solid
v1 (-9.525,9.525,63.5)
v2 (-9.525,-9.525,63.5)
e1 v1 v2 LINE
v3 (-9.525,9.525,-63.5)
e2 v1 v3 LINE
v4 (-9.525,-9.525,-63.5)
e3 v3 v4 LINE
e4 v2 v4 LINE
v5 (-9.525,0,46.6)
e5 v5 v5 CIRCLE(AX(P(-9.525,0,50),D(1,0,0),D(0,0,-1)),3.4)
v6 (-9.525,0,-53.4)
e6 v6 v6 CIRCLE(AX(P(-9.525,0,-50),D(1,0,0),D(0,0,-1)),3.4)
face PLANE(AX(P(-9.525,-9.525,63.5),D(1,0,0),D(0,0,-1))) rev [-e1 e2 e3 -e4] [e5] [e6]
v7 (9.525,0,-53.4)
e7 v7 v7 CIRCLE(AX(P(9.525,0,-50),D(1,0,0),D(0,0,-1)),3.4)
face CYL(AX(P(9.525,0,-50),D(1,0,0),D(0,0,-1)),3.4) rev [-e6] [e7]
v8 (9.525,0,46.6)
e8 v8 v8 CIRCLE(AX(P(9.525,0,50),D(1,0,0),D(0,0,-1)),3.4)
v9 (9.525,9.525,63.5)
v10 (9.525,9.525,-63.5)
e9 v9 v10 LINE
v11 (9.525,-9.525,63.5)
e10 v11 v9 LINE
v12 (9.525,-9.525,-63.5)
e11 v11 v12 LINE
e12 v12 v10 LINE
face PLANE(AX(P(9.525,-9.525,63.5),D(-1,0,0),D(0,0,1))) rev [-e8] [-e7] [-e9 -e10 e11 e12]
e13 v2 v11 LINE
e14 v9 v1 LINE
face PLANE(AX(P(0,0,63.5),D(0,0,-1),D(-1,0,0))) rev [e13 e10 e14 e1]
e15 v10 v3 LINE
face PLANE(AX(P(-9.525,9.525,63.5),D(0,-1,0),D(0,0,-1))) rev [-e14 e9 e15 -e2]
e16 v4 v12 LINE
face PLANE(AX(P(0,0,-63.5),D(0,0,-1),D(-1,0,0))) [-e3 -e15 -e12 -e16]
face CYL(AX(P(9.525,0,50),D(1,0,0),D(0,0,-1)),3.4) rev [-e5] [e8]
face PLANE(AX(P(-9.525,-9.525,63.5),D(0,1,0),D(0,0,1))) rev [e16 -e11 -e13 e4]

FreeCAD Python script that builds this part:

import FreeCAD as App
import Part
import Sketcher
from FreeCAD import Vector
Q = App.Units.Quantity

doc = App.newDocument("Part")
body = doc.addObject("PartDesign::Body", "Body")

# Sketch on XY plane
sketch1 = body.newObject("Sketcher::SketchObject", "Sketch")
sketch1.AttachmentSupport = (doc.getObject("XY_Plane"), [""])
sketch1.MapMode = "FlatFace"
sketch1.addGeometry([
    Part.LineSegment(Vector(-10, 10, 0), Vector(-10, -10, 0)),
    Part.LineSegment(Vector(-10, -10, 0), Vector(10, -10, 0)),
    Part.LineSegment(Vector(10, -10, 0), Vector(10, 10, 0)),
    Part.LineSegment(Vector(10, 10, 0), Vector(-10, 10, 0)),
], False)
sketch1.addConstraint([
    Sketcher.Constraint("Coincident", 0, 2, 1, 1),
    Sketcher.Constraint("Coincident", 1, 2, 2, 1),
    Sketcher.Constraint("Coincident", 2, 2, 3, 1),
    Sketcher.Constraint("Coincident", 3, 2, 0, 1),
    Sketcher.Constraint("Vertical", 0),
    Sketcher.Constraint("Horizontal", 1),
    Sketcher.Constraint("Vertical", 2),
    Sketcher.Constraint("Horizontal", 3),
    Sketcher.Constraint("Symmetric", 0, 2, 2, 2, -1, 1),
    Sketcher.Constraint("Equal", 3, 0),
    Sketcher.Constraint("DistanceX", 1, 1, 1, 2, Q("0.75 in")),
])
pad1 = body.newObject("PartDesign::Pad", "Pad")
pad1.Profile = sketch1
pad1.Length = Q("5 in")
pad1.Midplane = True

# Sketch on YZ plane
sketch2 = body.newObject("Sketcher::SketchObject", "Sketch001")
sketch2.AttachmentSupport = (doc.getObject("YZ_Plane"), [""])
sketch2.MapMode = "FlatFace"
sketch2.AttachmentOffset = App.Placement(Vector(0, 0, 0.375 * 25.4), App.Rotation())
sketch2.addGeometry([
    Part.Circle(Vector(0, 50, 0), Vector(0, 0, 1), 3.4),
    Part.Circle(Vector(0, -50, 0), Vector(0, 0, 1), 3.4),
], False)
sketch2.addConstraint([
    Sketcher.Constraint("Equal", 0, 1),
    Sketcher.Constraint("Symmetric", 0, 3, 1, 3, -1, 1),
    Sketcher.Constraint("PointOnObject", 0, 3, -2),
    Sketcher.Constraint("Diameter", 0, 6.8),
    Sketcher.Constraint("DistanceY", -1, 1, 0, 3, 50.0),
])
doc.recompute()
hole = body.newObject("PartDesign::Hole", "Hole")
hole.Profile = sketch2
hole.ThreadType = "None"
hole.Diameter = 6.8
hole.DepthType = "ThroughAll"

doc.recompute()
